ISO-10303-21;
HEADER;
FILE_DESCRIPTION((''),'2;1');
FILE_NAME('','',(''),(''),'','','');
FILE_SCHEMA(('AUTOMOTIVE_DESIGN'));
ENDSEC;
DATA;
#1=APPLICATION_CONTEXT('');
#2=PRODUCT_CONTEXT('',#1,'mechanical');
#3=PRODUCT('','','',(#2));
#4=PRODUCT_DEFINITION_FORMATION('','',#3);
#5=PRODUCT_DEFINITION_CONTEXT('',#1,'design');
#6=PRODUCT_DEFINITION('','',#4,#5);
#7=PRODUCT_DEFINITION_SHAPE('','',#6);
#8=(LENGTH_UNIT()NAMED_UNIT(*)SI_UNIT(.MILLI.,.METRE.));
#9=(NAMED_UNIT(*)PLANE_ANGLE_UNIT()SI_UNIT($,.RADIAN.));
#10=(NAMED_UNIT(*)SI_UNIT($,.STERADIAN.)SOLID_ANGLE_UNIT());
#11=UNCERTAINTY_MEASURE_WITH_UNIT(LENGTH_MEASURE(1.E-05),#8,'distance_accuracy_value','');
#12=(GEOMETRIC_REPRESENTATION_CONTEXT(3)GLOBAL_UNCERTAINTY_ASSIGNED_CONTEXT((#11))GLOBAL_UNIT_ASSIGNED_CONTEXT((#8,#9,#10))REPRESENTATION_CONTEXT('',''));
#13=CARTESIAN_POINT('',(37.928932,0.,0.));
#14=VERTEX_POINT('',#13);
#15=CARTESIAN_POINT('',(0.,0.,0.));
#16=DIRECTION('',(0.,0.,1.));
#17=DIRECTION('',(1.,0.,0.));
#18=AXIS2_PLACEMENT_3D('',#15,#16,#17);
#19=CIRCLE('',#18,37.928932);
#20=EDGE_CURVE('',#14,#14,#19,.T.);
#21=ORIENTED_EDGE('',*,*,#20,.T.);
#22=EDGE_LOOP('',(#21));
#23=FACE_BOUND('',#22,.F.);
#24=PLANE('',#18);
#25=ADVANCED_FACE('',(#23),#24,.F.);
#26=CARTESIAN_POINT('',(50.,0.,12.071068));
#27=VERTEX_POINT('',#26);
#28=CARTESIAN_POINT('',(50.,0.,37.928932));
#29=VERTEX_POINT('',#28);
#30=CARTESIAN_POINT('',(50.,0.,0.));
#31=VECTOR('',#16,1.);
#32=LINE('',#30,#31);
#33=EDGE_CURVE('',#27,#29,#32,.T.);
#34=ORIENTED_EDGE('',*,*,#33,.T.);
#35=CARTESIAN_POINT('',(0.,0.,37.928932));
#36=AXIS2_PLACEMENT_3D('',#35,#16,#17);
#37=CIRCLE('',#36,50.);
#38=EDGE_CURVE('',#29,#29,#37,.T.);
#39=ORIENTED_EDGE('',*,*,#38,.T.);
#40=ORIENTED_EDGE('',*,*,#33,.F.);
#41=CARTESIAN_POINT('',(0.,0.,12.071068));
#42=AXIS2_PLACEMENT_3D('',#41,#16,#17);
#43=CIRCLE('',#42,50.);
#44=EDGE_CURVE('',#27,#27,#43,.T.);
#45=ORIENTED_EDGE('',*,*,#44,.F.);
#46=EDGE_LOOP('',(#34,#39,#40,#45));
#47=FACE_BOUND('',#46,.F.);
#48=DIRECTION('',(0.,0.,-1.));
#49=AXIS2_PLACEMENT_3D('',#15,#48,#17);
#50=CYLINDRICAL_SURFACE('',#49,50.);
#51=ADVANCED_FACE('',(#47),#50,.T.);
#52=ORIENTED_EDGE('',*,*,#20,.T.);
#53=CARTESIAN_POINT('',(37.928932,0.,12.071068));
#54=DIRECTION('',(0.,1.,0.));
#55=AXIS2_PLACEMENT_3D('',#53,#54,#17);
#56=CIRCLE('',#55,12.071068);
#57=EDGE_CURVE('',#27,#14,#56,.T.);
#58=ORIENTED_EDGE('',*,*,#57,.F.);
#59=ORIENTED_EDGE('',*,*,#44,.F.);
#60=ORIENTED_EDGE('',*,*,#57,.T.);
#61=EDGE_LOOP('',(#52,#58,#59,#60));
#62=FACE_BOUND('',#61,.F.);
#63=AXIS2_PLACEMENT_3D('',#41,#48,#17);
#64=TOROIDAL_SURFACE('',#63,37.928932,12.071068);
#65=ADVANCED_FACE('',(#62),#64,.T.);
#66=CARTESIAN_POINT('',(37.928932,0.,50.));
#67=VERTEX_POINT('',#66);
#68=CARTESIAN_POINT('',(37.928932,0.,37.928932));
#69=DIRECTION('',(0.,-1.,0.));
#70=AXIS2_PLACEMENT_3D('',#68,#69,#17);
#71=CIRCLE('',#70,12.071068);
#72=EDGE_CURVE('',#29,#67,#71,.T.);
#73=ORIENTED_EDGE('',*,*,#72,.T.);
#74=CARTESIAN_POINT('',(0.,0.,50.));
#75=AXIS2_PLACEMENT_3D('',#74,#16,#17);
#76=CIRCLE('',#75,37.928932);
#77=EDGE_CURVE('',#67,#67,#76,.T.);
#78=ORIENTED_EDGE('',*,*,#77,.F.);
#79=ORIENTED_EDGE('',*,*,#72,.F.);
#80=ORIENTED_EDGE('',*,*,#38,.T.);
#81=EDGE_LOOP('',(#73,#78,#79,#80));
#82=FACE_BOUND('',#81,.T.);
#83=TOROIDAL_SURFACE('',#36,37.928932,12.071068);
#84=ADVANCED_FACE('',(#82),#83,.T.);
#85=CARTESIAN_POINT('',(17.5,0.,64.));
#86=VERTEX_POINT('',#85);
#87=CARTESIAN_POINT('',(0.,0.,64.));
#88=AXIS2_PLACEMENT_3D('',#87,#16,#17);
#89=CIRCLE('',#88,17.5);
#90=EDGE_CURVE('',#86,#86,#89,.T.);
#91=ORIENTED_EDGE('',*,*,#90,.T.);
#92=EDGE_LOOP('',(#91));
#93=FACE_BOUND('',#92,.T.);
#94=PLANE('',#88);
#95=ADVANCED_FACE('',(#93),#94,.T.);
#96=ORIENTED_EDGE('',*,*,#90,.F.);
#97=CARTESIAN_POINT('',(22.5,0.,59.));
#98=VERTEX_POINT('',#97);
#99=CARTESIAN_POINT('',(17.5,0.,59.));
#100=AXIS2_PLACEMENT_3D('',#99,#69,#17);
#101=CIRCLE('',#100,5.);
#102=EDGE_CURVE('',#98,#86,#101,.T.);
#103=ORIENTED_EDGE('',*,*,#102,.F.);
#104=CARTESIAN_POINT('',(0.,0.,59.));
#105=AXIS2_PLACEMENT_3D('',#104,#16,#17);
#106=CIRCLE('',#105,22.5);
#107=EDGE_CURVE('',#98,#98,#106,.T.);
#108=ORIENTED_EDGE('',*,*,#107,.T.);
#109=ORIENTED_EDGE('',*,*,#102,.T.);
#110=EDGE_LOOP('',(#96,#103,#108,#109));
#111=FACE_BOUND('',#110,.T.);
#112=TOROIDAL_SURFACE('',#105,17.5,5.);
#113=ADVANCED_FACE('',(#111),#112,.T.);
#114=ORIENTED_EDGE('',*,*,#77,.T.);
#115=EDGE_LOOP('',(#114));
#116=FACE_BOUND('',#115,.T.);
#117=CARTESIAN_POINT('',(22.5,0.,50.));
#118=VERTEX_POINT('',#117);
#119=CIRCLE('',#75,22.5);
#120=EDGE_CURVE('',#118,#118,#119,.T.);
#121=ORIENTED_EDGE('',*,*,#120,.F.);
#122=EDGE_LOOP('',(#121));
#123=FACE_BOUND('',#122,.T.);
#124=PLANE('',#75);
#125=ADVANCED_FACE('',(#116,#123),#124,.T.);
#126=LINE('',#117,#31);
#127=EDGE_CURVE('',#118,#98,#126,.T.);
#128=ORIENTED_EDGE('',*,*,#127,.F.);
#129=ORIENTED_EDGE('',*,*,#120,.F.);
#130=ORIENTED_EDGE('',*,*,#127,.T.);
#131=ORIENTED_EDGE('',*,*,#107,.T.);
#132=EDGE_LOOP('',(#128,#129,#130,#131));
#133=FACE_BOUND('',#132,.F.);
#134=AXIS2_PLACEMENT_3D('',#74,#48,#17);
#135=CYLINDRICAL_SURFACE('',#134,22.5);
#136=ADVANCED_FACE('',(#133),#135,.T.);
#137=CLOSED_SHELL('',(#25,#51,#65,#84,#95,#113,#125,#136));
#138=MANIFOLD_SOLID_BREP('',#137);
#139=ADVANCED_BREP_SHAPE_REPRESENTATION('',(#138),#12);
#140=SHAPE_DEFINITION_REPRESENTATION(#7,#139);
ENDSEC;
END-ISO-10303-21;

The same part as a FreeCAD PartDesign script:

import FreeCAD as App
import Part
import Sketcher
Q = App.Units.Quantity


def edges_at(feature, points):
    """Names of the edges that pass closest to the given points."""
    edges = feature.Shape.Edges
    near = lambda p: min(range(len(edges)), key=lambda i: edges[i].distToShape(Part.Vertex(*p))[0])
    return sorted({f"Edge{near(p) + 1}" for p in points})

doc = App.newDocument("Part")
body = doc.addObject("PartDesign::Body", "Body")

# Sketch on XY plane
sketch1 = doc.addObject("Sketcher::SketchObject", "Sketch")
body.addObject(sketch1)
sketch1.AttachmentSupport = (doc.XY_Plane, [""])
sketch1.MapMode = "FlatFace"
sketch1.addGeometry(Part.Circle(App.Vector(0, 0, 0), App.Vector(0, 0, 1), 50), False)
sketch1.addConstraint([
    Sketcher.Constraint("Coincident", 0, 3, -1, 1),
    Sketcher.Constraint("Diameter", 0, Q("100 mm")),
])
pad1 = doc.addObject("PartDesign::Pad", "Pad")
body.addObject(pad1)
pad1.Profile = sketch1
pad1.Length = 50
doc.recompute()

fillet = doc.addObject("PartDesign::Fillet", "Fillet")
body.addObject(fillet)
fillet.Base = (pad1, edges_at(pad1, [(-50, 0, 50), (-50, 0, 0)]))
fillet.Radius = 12.071068

# Sketch on XY plane
sketch2 = doc.addObject("Sketcher::SketchObject", "Sketch001")
body.addObject(sketch2)
sketch2.AttachmentSupport = (doc.XY_Plane, [""])
sketch2.MapMode = "FlatFace"
sketch2.AttachmentOffset = App.Placement(App.Vector(0, 0, 50), App.Rotation())
sketch2.addGeometry(Part.Circle(App.Vector(0, 0, 0), App.Vector(0, 0, 1), 22), False)
sketch2.addConstraint([
    Sketcher.Constraint("Coincident", 0, 3, -1, 1),
    Sketcher.Constraint("Diameter", 0, Q("45 mm")),
])
pad2 = doc.addObject("PartDesign::Pad", "Pad001")
body.addObject(pad2)
pad2.Profile = sketch2
pad2.Length = 14
doc.recompute()

fillet2 = doc.addObject("PartDesign::Fillet", "Fillet001")
body.addObject(fillet2)
fillet2.Base = (pad2, edges_at(pad2, [(-22.5, 0, 64)]))
fillet2.Radius = 5

doc.recompute()
